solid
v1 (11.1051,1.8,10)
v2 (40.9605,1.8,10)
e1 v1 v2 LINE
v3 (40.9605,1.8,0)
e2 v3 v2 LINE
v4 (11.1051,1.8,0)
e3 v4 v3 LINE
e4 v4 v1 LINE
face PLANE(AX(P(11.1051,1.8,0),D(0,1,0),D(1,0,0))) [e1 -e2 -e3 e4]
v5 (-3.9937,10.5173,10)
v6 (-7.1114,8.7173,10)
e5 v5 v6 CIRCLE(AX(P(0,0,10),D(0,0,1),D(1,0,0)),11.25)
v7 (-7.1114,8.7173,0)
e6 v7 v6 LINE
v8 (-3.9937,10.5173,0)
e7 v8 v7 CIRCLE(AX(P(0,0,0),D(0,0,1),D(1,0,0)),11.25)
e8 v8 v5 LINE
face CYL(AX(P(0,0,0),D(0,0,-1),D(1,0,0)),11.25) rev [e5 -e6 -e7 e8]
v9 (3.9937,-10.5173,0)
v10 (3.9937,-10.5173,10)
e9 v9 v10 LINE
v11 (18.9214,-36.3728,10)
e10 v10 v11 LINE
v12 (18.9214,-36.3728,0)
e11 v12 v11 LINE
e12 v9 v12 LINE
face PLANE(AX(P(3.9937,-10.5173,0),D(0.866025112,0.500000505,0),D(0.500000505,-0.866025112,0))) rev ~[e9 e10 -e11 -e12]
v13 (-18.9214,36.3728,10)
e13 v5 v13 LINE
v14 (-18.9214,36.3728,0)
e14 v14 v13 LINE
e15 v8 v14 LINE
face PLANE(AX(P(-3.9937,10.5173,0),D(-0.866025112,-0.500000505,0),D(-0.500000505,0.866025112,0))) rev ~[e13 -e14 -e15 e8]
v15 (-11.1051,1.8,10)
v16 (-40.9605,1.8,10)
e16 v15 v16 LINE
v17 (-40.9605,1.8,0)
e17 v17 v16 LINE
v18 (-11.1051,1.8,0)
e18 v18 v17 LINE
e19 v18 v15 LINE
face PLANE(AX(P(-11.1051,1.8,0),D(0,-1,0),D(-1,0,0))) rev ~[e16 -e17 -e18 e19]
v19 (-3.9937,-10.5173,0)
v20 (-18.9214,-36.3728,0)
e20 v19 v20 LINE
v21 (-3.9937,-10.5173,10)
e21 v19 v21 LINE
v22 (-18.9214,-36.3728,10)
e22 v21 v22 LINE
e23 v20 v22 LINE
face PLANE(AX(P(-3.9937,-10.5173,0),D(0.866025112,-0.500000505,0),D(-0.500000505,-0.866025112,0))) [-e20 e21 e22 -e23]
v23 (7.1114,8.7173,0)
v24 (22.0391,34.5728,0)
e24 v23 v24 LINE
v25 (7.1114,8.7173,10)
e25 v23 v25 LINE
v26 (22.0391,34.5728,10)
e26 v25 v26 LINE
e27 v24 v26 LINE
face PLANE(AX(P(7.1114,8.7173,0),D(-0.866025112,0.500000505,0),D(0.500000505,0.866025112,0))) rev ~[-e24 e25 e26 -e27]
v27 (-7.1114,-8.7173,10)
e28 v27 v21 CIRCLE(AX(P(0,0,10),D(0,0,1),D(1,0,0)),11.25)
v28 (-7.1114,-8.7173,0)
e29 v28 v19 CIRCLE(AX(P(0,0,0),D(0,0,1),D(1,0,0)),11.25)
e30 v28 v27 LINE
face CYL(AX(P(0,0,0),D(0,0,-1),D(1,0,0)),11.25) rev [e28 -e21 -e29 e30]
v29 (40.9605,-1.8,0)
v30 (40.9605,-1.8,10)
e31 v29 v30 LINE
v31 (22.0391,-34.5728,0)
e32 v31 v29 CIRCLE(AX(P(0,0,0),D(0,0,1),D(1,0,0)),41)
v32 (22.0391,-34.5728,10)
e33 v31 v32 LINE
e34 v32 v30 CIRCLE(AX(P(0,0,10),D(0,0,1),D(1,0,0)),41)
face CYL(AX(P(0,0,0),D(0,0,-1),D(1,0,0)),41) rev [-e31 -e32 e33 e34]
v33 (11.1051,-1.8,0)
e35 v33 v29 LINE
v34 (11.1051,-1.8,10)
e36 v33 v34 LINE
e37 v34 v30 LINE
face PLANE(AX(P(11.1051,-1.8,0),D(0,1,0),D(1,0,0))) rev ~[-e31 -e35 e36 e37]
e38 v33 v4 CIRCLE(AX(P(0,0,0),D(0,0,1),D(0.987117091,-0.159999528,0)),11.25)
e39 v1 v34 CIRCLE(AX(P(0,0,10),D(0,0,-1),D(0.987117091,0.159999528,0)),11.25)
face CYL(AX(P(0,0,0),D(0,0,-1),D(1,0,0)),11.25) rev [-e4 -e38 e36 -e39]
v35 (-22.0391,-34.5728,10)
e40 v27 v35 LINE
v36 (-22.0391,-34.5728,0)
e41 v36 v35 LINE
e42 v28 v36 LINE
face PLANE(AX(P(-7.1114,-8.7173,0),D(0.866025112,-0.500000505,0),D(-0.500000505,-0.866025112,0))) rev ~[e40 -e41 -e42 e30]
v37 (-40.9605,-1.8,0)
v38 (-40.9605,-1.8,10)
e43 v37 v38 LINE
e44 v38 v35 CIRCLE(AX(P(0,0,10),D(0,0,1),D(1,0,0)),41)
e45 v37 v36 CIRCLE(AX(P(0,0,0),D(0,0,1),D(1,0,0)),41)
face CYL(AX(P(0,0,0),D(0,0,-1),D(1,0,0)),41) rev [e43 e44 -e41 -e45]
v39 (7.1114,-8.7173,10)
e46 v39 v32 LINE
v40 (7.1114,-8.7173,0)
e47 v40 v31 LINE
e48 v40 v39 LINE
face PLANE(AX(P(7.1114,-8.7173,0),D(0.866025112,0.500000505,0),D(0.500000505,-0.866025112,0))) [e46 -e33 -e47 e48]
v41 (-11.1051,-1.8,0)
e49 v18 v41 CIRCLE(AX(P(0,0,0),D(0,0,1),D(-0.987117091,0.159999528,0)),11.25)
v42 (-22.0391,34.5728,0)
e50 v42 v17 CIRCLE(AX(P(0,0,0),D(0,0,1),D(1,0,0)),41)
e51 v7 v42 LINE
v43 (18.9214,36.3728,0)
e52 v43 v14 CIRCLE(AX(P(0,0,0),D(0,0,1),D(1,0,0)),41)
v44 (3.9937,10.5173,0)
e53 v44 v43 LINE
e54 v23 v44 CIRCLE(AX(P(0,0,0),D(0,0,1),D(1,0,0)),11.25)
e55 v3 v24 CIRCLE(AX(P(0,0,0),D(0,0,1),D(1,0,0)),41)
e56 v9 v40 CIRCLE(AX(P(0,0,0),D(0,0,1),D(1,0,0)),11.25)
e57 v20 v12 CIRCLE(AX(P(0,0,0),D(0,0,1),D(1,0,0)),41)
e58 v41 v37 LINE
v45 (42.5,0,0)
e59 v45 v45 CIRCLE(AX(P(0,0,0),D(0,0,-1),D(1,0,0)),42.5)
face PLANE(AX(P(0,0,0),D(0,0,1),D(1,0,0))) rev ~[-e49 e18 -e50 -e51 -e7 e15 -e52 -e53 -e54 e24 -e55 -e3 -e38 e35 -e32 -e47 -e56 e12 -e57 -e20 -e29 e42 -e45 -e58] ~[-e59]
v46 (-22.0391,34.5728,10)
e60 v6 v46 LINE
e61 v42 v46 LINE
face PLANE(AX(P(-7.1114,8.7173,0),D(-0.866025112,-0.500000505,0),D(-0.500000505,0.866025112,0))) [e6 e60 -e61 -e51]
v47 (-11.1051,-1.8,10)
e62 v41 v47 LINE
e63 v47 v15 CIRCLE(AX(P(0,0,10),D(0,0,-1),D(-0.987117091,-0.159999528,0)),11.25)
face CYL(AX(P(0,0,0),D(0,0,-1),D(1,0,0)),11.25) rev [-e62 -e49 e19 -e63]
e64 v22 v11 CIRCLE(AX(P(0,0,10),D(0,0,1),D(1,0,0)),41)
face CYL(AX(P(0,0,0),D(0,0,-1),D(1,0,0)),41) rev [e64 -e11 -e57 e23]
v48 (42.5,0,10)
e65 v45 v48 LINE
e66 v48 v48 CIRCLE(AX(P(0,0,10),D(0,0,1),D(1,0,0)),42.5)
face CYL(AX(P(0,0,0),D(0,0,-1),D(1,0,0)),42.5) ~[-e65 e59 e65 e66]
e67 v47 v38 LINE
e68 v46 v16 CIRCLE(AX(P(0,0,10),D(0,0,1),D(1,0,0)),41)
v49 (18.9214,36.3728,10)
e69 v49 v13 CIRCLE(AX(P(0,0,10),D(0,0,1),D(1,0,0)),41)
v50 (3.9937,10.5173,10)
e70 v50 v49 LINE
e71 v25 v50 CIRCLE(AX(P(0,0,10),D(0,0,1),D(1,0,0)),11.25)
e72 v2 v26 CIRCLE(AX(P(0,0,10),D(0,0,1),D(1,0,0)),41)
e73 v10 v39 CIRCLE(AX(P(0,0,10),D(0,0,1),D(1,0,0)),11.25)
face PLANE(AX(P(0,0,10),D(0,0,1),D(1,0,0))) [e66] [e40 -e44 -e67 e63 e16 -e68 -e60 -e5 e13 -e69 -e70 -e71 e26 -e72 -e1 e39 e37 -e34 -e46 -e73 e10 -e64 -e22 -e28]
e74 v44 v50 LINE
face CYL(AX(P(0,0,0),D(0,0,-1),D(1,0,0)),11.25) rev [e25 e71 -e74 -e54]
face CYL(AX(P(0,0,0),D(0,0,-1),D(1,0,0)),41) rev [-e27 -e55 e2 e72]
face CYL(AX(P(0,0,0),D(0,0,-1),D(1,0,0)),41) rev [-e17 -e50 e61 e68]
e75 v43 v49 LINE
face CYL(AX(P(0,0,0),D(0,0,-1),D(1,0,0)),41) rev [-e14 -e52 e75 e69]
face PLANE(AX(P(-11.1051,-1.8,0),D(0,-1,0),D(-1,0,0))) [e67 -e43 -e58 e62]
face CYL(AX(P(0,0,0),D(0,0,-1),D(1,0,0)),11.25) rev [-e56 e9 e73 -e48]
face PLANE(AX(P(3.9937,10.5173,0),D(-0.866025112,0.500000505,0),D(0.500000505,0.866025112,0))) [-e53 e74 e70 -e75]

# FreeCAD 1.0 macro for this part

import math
import FreeCAD as App
import Part
import Sketcher

V = App.Vector
Q = App.Units.Quantity

doc = App.newDocument("Part")
params = doc.addObject("Spreadsheet::Sheet", "Params")
for row, (alias, value) in enumerate([
    ("sketch1_diameter", "85 mm"),
    ("sketch1_radius", "41 mm"),
    ("sketch1_radius2", "11.25 mm"),
    ("pad1_length", "10 mm"),
], start=1):
    params.set(f"A{row}", alias)
    params.set(f"B{row}", "=" + value)
    params.setAlias(f"B{row}", alias)

body = doc.addObject("PartDesign::Body", "Body")

# Sketch on XY plane
sketch1 = body.newObject("Sketcher::SketchObject", "Sketch")
sketch1.AttachmentSupport = (doc.getObject("XY_Plane"), [""])
sketch1.MapMode = "FlatFace"
sketch1.addGeometry(Part.Circle(V(0, 0, 0), V(0, 0, 1), 42.5), False)
sketch1.addGeometry(Part.ArcOfCircle(Part.Circle(V(0, 0, 0), V(0, 0, 1), 41), math.radians(3), math.radians(57)), False)
sketch1.addGeometry(Part.LineSegment(V(41, 1.8, 0), V(11.1, 1.8, 0)), False)
sketch1.addGeometry(Part.ArcOfCircle(Part.Circle(V(0, 0, 0), V(0, 0, 1), 11.2), math.radians(-9.21), math.radians(9.21)), False)
sketch1.addGeometry(Part.LineSegment(V(11.1, -1.8, 0), V(41, -1.8, 0)), False)
sketch1.addGeometry(Part.ArcOfCircle(Part.Circle(V(0, 0, 0), V(0, 0, 1), 41), math.radians(-57), math.radians(-3)), False)
sketch1.addGeometry(Part.LineSegment(V(22, -34.6, 0), V(7.1, -8.7, 0)), False)
sketch1.addGeometry(Part.ArcOfCircle(Part.Circle(V(0, 0, 0), V(0, 0, 1), 11.2), math.radians(-69.21), math.radians(-50.79)), False)
sketch1.addGeometry(Part.LineSegment(V(4, -10.5, 0), V(18.9, -36.4, 0)), False)
sketch1.addGeometry(Part.ArcOfCircle(Part.Circle(V(0, 0, 0), V(0, 0, 1), 41), math.radians(-117), math.radians(-63)), False)
sketch1.addGeometry(Part.LineSegment(V(-18.9, -36.4, 0), V(-4, -10.5, 0)), False)
sketch1.addGeometry(Part.ArcOfCircle(Part.Circle(V(0, 0, 0), V(0, 0, 1), 11.2), math.radians(-129.21), math.radians(-110.79)), False)
sketch1.addGeometry(Part.LineSegment(V(-7.1, -8.7, 0), V(-22, -34.6, 0)), False)
sketch1.addGeometry(Part.ArcOfCircle(Part.Circle(V(0, 0, 0), V(0, 0, 1), 41), math.radians(-177), math.radians(-123)), False)
sketch1.addGeometry(Part.LineSegment(V(-41, -1.8, 0), V(-11.1, -1.8, 0)), False)
sketch1.addGeometry(Part.ArcOfCircle(Part.Circle(V(0, 0, 0), V(0, 0, 1), 11.2), math.radians(170.79), math.radians(189.21)), False)
sketch1.addGeometry(Part.LineSegment(V(-11.1, 1.8, 0), V(-41, 1.8, 0)), False)
sketch1.addGeometry(Part.ArcOfCircle(Part.Circle(V(0, 0, 0), V(0, 0, 1), 41), math.radians(123), math.radians(177)), False)
sketch1.addGeometry(Part.LineSegment(V(-22, 34.6, 0), V(-7.1, 8.7, 0)), False)
sketch1.addGeometry(Part.ArcOfCircle(Part.Circle(V(0, 0, 0), V(0, 0, 1), 11.2), math.radians(110.79), math.radians(129.21)), False)
sketch1.addGeometry(Part.LineSegment(V(-4, 10.5, 0), V(-18.9, 36.4, 0)), False)
sketch1.addGeometry(Part.ArcOfCircle(Part.Circle(V(0, 0, 0), V(0, 0, 1), 41), math.radians(63), math.radians(117)), False)
sketch1.addGeometry(Part.LineSegment(V(18.9, 36.4, 0), V(4, 10.5, 0)), False)
sketch1.addGeometry(Part.ArcOfCircle(Part.Circle(V(0, 0, 0), V(0, 0, 1), 11.2), math.radians(50.79), math.radians(69.21)), False)
sketch1.addGeometry(Part.LineSegment(V(7.1, 8.7, 0), V(22, 34.6, 0)), False)
sketch1.addConstraint(Sketcher.Constraint("Coincident", 1, 1, 2, 1))
sketch1.addConstraint(Sketcher.Constraint("Coincident", 2, 2, 3, 2))
sketch1.addConstraint(Sketcher.Constraint("Coincident", 3, 1, 4, 1))
sketch1.addConstraint(Sketcher.Constraint("Coincident", 4, 2, 5, 2))
sketch1.addConstraint(Sketcher.Constraint("Coincident", 5, 1, 6, 1))
sketch1.addConstraint(Sketcher.Constraint("Coincident", 6, 2, 7, 2))
sketch1.addConstraint(Sketcher.Constraint("Coincident", 7, 1, 8, 1))
sketch1.addConstraint(Sketcher.Constraint("Coincident", 8, 2, 9, 2))
sketch1.addConstraint(Sketcher.Constraint("Coincident", 9, 1, 10, 1))
sketch1.addConstraint(Sketcher.Constraint("Coincident", 10, 2, 11, 2))
sketch1.addConstraint(Sketcher.Constraint("Coincident", 11, 1, 12, 1))
sketch1.addConstraint(Sketcher.Constraint("Coincident", 12, 2, 13, 2))
sketch1.addConstraint(Sketcher.Constraint("Coincident", 13, 1, 14, 1))
sketch1.addConstraint(Sketcher.Constraint("Coincident", 14, 2, 15, 2))
sketch1.addConstraint(Sketcher.Constraint("Coincident", 15, 1, 16, 1))
sketch1.addConstraint(Sketcher.Constraint("Coincident", 16, 2, 17, 2))
sketch1.addConstraint(Sketcher.Constraint("Coincident", 17, 1, 18, 1))
sketch1.addConstraint(Sketcher.Constraint("Coincident", 18, 2, 19, 2))
sketch1.addConstraint(Sketcher.Constraint("Coincident", 19, 1, 20, 1))
sketch1.addConstraint(Sketcher.Constraint("Coincident", 20, 2, 21, 2))
sketch1.addConstraint(Sketcher.Constraint("Coincident", 21, 1, 22, 1))
sketch1.addConstraint(Sketcher.Constraint("Coincident", 22, 2, 23, 2))
sketch1.addConstraint(Sketcher.Constraint("Coincident", 23, 1, 24, 1))
sketch1.addConstraint(Sketcher.Constraint("Coincident", 24, 2, 1, 2))
sketch1.addConstraint(Sketcher.Constraint("Horizontal", 2))
sketch1.addConstraint(Sketcher.Constraint("Horizontal", 4))
sketch1.addConstraint(Sketcher.Constraint("Horizontal", 14))
sketch1.addConstraint(Sketcher.Constraint("Horizontal", 16))
sketch1.addConstraint(Sketcher.Constraint("Coincident", 0, 3, -1, 1))
sketch1.addConstraint(Sketcher.Constraint("Coincident", 1, 3, -1, 1))
sketch1.addConstraint(Sketcher.Constraint("Coincident", 3, 3, -1, 1))
sketch1.addConstraint(Sketcher.Constraint("Coincident", 5, 3, -1, 1))
sketch1.addConstraint(Sketcher.Constraint("Coincident", 7, 3, -1, 1))
sketch1.addConstraint(Sketcher.Constraint("Coincident", 9, 3, -1, 1))
sketch1.addConstraint(Sketcher.Constraint("Coincident", 11, 3, -1, 1))
sketch1.addConstraint(Sketcher.Constraint("Coincident", 13, 3, -1, 1))
sketch1.addConstraint(Sketcher.Constraint("Coincident", 15, 3, -1, 1))
sketch1.addConstraint(Sketcher.Constraint("Coincident", 17, 3, -1, 1))
sketch1.addConstraint(Sketcher.Constraint("Coincident", 19, 3, -1, 1))
sketch1.addConstraint(Sketcher.Constraint("Coincident", 21, 3, -1, 1))
sketch1.addConstraint(Sketcher.Constraint("Coincident", 23, 3, -1, 1))
sketch1.addConstraint(Sketcher.Constraint("Equal", 1, 5))
sketch1.addConstraint(Sketcher.Constraint("Equal", 3, 7))
sketch1.addConstraint(Sketcher.Constraint("Equal", 5, 9))
sketch1.addConstraint(Sketcher.Constraint("Equal", 7, 11))
sketch1.addConstraint(Sketcher.Constraint("Equal", 9, 13))
sketch1.addConstraint(Sketcher.Constraint("Equal", 11, 15))
sketch1.addConstraint(Sketcher.Constraint("Equal", 13, 17))
sketch1.addConstraint(Sketcher.Constraint("Equal", 15, 19))
sketch1.addConstraint(Sketcher.Constraint("Equal", 17, 21))
sketch1.addConstraint(Sketcher.Constraint("Equal", 19, 23))
sketch1.addConstraint(Sketcher.Constraint("Parallel", 6, 8))
sketch1.addConstraint(Sketcher.Constraint("Parallel", 10, 12))
sketch1.addConstraint(Sketcher.Constraint("Parallel", 8, 18))
sketch1.addConstraint(Sketcher.Constraint("Parallel", 18, 20))
sketch1.addConstraint(Sketcher.Constraint("Parallel", 12, 22))
sketch1.addConstraint(Sketcher.Constraint("Parallel", 22, 24))
sketch1.addConstraint(Sketcher.Constraint("Horizontal", 8, 2, 9, 1))
sketch1.addConstraint(Sketcher.Constraint("Horizontal", 7, 1, 10, 2))
sketch1.addConstraint(Sketcher.Constraint("Horizontal", 6, 2, 11, 1))
sketch1.addConstraint(Sketcher.Constraint("Horizontal", 4, 2, 13, 1))
sketch1.addConstraint(Sketcher.Constraint("Horizontal", 2, 2, 15, 1))
sketch1.addConstraint(Sketcher.Constraint("Horizontal", 20, 2, 21, 1))
sketch1.addConstraint(Sketcher.Constraint("Horizontal", 18, 2, 23, 1))
sketch1.addConstraint(Sketcher.Constraint("Vertical", 2, 2, 3, 1))
sketch1.addConstraint(Sketcher.Constraint("Vertical", 12, 2, 17, 1))
sketch1.addConstraint(Sketcher.Constraint("Vertical", 10, 2, 19, 1))
sketch1.addConstraint(Sketcher.Constraint("Equal", 6, 8))
sketch1.addConstraint(Sketcher.Constraint("Diameter", 0, 85.0))
sketch1.addConstraint(Sketcher.Constraint("Radius", 1, 41.0))
sketch1.addConstraint(Sketcher.Constraint("Radius", 3, 11.25))
sketch1.addConstraint(Sketcher.Constraint("DistanceY", -1, 1, 1, 1, 1.8))
sketch1.addConstraint(Sketcher.Constraint("DistanceY", 7, 1, 6, 2, 1.8))
sketch1.addConstraint(Sketcher.Constraint("Angle", 6, Q("120 deg")))
sketch1.setExpression("Constraints[68]", "Params.sketch1_diameter")
sketch1.setExpression("Constraints[69]", "Params.sketch1_radius")
sketch1.setExpression("Constraints[70]", "Params.sketch1_radius2")
pad1 = body.newObject("PartDesign::Pad", "Pad")
pad1.Profile = sketch1
pad1.setExpression("Length", "Params.pad1_length")

doc.recompute()
